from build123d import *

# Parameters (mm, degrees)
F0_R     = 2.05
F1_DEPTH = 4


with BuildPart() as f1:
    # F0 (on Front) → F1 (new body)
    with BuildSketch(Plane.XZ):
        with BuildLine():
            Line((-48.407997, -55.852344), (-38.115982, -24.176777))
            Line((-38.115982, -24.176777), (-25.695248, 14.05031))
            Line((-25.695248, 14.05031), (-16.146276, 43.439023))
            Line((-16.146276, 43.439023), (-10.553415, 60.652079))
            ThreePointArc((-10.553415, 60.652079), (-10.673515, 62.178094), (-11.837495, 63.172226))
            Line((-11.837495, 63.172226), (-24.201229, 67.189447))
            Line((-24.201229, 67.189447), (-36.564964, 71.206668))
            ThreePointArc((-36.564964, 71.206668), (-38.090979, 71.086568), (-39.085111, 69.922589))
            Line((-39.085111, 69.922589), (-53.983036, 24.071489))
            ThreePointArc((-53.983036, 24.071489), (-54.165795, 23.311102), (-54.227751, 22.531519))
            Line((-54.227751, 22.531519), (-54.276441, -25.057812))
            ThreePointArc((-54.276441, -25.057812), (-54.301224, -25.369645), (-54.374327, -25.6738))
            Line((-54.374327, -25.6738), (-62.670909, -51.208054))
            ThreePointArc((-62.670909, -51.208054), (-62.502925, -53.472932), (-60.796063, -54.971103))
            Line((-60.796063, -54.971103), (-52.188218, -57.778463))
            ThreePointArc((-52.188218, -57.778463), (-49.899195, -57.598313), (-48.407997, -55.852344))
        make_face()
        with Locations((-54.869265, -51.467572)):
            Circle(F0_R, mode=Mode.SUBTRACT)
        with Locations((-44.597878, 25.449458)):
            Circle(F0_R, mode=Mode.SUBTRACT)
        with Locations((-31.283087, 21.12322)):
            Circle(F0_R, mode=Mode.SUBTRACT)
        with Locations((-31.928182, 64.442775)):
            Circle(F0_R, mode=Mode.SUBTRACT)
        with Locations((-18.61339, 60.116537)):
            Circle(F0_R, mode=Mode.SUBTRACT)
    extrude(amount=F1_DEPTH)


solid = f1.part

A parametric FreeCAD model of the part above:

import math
import FreeCAD as App
import Part
import Sketcher

V = App.Vector
Q = App.Units.Quantity

doc = App.newDocument("Part")
params = doc.addObject("Spreadsheet::Sheet", "Params")
for row, (alias, value) in enumerate([
    ("sketch1_radius", "1.999999 mm"),
    ("sketch1_radius2", "2.999999 mm"),
    ("sketch1_diameter", "4.1 mm"),
    ("sketch1_length", "12.999999 mm"),
    ("pad1_length", "4 mm"),
], start=1):
    params.set(f"A{row}", alias)
    params.set(f"B{row}", "=" + value)
    params.setAlias(f"B{row}", alias)

body = doc.addObject("PartDesign::Body", "Body")

sketch1 = doc.addObject("Sketcher::SketchObject", "Sketch")
body.addObject(sketch1)
sketch1.AttachmentSupport = (doc.XZ_Plane, [""])
sketch1.MapMode = "FlatFace"
sketch1.addGeometry(Part.LineSegment(V(-48.4, -55.9, 0), V(-38.1, -24.2, 0)), False)
sketch1.addGeometry(Part.LineSegment(V(-38.1, -24.2, 0), V(-25.7, 14.1, 0)), False)
sketch1.addGeometry(Part.LineSegment(V(-25.7, 14.1, 0), V(-16.1, 43.4, 0)), False)
sketch1.addGeometry(Part.LineSegment(V(-16.1, 43.4, 0), V(-10.6, 60.7, 0)), False)
sketch1.addGeometry(Part.ArcOfCircle(Part.Circle(V(-12.5, 61.3, 0), V(0, 0, 1), 2), math.radians(-18), math.radians(72)), False)
sketch1.addGeometry(Part.LineSegment(V(-11.8, 63.2, 0), V(-24.2, 67.2, 0)), False)
sketch1.addGeometry(Part.LineSegment(V(-24.2, 67.2, 0), V(-36.6, 71.2, 0)), False)
sketch1.addGeometry(Part.ArcOfCircle(Part.Circle(V(-37.2, 69.3, 0), V(0, 0, 1), 2), math.radians(72), math.radians(162)), False)
sketch1.addGeometry(Part.LineSegment(V(-39.1, 69.9, 0), V(-54, 24.1, 0)), False)
sketch1.addGeometry(Part.ArcOfCircle(Part.Circle(V(-49.2, 22.5, 0), V(0, 0, 1), 5), math.radians(162), math.radians(179.94)), False)
sketch1.addGeometry(Part.LineSegment(V(-54.2, 22.5, 0), V(-54.3, -25.1, 0)), False)
sketch1.addGeometry(Part.ArcOfCircle(Part.Circle(V(-56.3, -25.1, 0), V(0, 0, 1), 2), math.radians(-18), math.radians(-0.06)), False)
sketch1.addGeometry(Part.LineSegment(V(-54.4, -25.7, 0), V(-62.7, -51.2, 0)), False)
sketch1.addGeometry(Part.ArcOfCircle(Part.Circle(V(-59.8, -52.1, 0), V(0, 0, 1), 3), math.radians(162), math.radians(251)), False)
sketch1.addGeometry(Part.LineSegment(V(-60.8, -55, 0), V(-52.2, -57.8, 0)), False)
sketch1.addGeometry(Part.ArcOfCircle(Part.Circle(V(-51.3, -54.9, 0), V(0, 0, 1), 3), math.radians(-108), math.radians(-18)), False)
sketch1.addGeometry(Part.Circle(V(-54.9, -51.5, 0), V(0, 0, 1), 2), False)
sketch1.addGeometry(Part.Circle(V(-44.6, 25.4, 0), V(0, 0, 1), 2), False)
sketch1.addGeometry(Part.Circle(V(-31.3, 21.1, 0), V(0, 0, 1), 2), False)
sketch1.addGeometry(Part.Circle(V(-31.9, 64.4, 0), V(0, 0, 1), 2), False)
sketch1.addGeometry(Part.Circle(V(-18.6, 60.1, 0), V(0, 0, 1), 2), False)
sketch1.addConstraint(Sketcher.Constraint("Coincident", 0, 2, 1, 1))
sketch1.addConstraint(Sketcher.Constraint("Coincident", 1, 2, 2, 1))
sketch1.addConstraint(Sketcher.Constraint("Coincident", 2, 2, 3, 1))
sketch1.addConstraint(Sketcher.Constraint("Tangent", 3, 2, 4, 1))
sketch1.addConstraint(Sketcher.Constraint("Tangent", 4, 2, 5, 1))
sketch1.addConstraint(Sketcher.Constraint("Coincident", 5, 2, 6, 1))
sketch1.addConstraint(Sketcher.Constraint("Tangent", 6, 2, 7, 1))
sketch1.addConstraint(Sketcher.Constraint("Tangent", 7, 2, 8, 1))
sketch1.addConstraint(Sketcher.Constraint("Tangent", 8, 2, 9, 1))
sketch1.addConstraint(Sketcher.Constraint("Tangent", 9, 2, 10, 1))
sketch1.addConstraint(Sketcher.Constraint("Coincident", 10, 2, 11, 2))
sketch1.addConstraint(Sketcher.Constraint("Coincident", 11, 1, 12, 1))
sketch1.addConstraint(Sketcher.Constraint("Tangent", 12, 2, 13, 1))
sketch1.addConstraint(Sketcher.Constraint("Coincident", 13, 2, 14, 1))
sketch1.addConstraint(Sketcher.Constraint("Coincident", 14, 2, 15, 1))
sketch1.addConstraint(Sketcher.Constraint("Tangent", 15, 2, 0, 1))
sketch1.addConstraint(Sketcher.Constraint("Equal", 4, 7))
sketch1.addConstraint(Sketcher.Constraint("Equal", 13, 15))
sketch1.addConstraint(Sketcher.Constraint("Equal", 16, 17))
sketch1.addConstraint(Sketcher.Constraint("Equal", 17, 18))
sketch1.addConstraint(Sketcher.Constraint("Equal", 18, 19))
sketch1.addConstraint(Sketcher.Constraint("Equal", 19, 20))
sketch1.addConstraint(Sketcher.Constraint("Parallel", 0, 1))
sketch1.addConstraint(Sketcher.Constraint("Parallel", 1, 2))
sketch1.addConstraint(Sketcher.Constraint("Parallel", 2, 3))
sketch1.addConstraint(Sketcher.Constraint("Perpendicular", 3, 5))
sketch1.addConstraint(Sketcher.Constraint("Parallel", 5, 6))
sketch1.addConstraint(Sketcher.Constraint("Perpendicular", 6, 8))
sketch1.addConstraint(Sketcher.Constraint("Parallel", 8, 12))
sketch1.addConstraint(Sketcher.Constraint("Equal", 5, 6))
sketch1.addConstraint(Sketcher.Constraint("Radius", 4, Q("1.999999 mm")))
sketch1.addConstraint(Sketcher.Constraint("Radius", 13, Q("2.999999 mm")))
sketch1.addConstraint(Sketcher.Constraint("Diameter", 16, Q("4.1 mm")))
sketch1.addConstraint(Sketcher.Constraint("Angle", 0, Q("72.000001 deg")))
sketch1.addConstraint(Sketcher.Constraint("Distance", 5, Q("12.999999 mm")))
sketch1.addConstraint(Sketcher.Constraint("Radius", 9, Q("4.999963 mm")))
sketch1.addConstraint(Sketcher.Constraint("Radius", 11, Q("2.000036 mm")))
sketch1.addConstraint(Sketcher.Constraint("Distance", 8, Q("48.210699 mm")))
sketch1.addConstraint(Sketcher.Constraint("DistanceY", 11, 1, -1, 1, Q("25.6738 mm")))
sketch1.addConstraint(Sketcher.Constraint("DistanceX", 16, 3, 15, 3, Q("3.608098 mm")))
sketch1.addConstraint(Sketcher.Constraint("DistanceY", 1, 2, 9, 3, Q("8.476099 mm")))
sketch1.addConstraint(Sketcher.Constraint("DistanceY", 18, 3, 9, 2, Q("1.408299 mm")))
sketch1.addConstraint(Sketcher.Constraint("DistanceX", 13, 3, 10, 2, Q("5.541299 mm")))
sketch1.addConstraint(Sketcher.Constraint("DistanceX", 13, 2, 16, 3, Q("5.926798 mm")))
sketch1.addConstraint(Sketcher.Constraint("Distance", 0, Q("33.305662 mm")))
sketch1.addConstraint(Sketcher.Constraint("Distance", 1, Q("40.194338 mm")))
sketch1.addConstraint(Sketcher.Constraint("Distance", 2, Q("30.901122 mm")))
sketch1.addConstraint(Sketcher.Constraint("DistanceX", 9, 3, -1, 1, Q("49.22779 mm")))
sketch1.addConstraint(Sketcher.Constraint("DistanceY", -1, 1, 9, 3, Q("22.526409 mm")))
sketch1.addConstraint(Sketcher.Constraint("DistanceY", 11, 3, -1, 1, Q("25.05576 mm")))
sketch1.addConstraint(Sketcher.Constraint("DistanceX", 13, 3, -1, 1, Q("59.81774 mm")))
sketch1.addConstraint(Sketcher.Constraint("DistanceY", 16, 3, -1, 1, Q("51.467572 mm")))
sketch1.addConstraint(Sketcher.Constraint("DistanceY", -1, 1, 17, 3, Q("25.449458 mm")))
sketch1.addConstraint(Sketcher.Constraint("DistanceX", 19, 3, -1, 1, Q("31.928182 mm")))
sketch1.addConstraint(Sketcher.Constraint("DistanceX", 20, 3, -1, 1, Q("18.61339 mm")))
sketch1.addConstraint(Sketcher.Constraint("DistanceY", 10, 2, -1, 1, Q("25.057812 mm")))
sketch1.addConstraint(Sketcher.Constraint("DistanceX", 17, 3, 7, 3, Q("7.41488 mm")))
sketch1.addConstraint(Sketcher.Constraint("DistanceX", 17, 3, 18, 3, Q("13.314791 mm")))
sketch1.addConstraint(Sketcher.Constraint("DistanceY", 19, 3, 7, 3, Q("4.86178 mm")))
sketch1.addConstraint(Sketcher.Constraint("DistanceY", 17, 3, 20, 3, Q("34.667079 mm")))
sketch1.addConstraint(Sketcher.Constraint("DistanceX", 14, 2, 15, 3, Q("0.927051 mm")))
sketch1.setExpression("Constraints[30]", "Params.sketch1_radius")
sketch1.setExpression("Constraints[31]", "Params.sketch1_radius2")
sketch1.setExpression("Constraints[32]", "Params.sketch1_diameter")
sketch1.setExpression("Constraints[34]", "Params.sketch1_length")
pad1 = doc.addObject("PartDesign::Pad", "Pad")
body.addObject(pad1)
pad1.Profile = sketch1
pad1.setExpression("Length", "Params.pad1_length")

doc.recompute()
